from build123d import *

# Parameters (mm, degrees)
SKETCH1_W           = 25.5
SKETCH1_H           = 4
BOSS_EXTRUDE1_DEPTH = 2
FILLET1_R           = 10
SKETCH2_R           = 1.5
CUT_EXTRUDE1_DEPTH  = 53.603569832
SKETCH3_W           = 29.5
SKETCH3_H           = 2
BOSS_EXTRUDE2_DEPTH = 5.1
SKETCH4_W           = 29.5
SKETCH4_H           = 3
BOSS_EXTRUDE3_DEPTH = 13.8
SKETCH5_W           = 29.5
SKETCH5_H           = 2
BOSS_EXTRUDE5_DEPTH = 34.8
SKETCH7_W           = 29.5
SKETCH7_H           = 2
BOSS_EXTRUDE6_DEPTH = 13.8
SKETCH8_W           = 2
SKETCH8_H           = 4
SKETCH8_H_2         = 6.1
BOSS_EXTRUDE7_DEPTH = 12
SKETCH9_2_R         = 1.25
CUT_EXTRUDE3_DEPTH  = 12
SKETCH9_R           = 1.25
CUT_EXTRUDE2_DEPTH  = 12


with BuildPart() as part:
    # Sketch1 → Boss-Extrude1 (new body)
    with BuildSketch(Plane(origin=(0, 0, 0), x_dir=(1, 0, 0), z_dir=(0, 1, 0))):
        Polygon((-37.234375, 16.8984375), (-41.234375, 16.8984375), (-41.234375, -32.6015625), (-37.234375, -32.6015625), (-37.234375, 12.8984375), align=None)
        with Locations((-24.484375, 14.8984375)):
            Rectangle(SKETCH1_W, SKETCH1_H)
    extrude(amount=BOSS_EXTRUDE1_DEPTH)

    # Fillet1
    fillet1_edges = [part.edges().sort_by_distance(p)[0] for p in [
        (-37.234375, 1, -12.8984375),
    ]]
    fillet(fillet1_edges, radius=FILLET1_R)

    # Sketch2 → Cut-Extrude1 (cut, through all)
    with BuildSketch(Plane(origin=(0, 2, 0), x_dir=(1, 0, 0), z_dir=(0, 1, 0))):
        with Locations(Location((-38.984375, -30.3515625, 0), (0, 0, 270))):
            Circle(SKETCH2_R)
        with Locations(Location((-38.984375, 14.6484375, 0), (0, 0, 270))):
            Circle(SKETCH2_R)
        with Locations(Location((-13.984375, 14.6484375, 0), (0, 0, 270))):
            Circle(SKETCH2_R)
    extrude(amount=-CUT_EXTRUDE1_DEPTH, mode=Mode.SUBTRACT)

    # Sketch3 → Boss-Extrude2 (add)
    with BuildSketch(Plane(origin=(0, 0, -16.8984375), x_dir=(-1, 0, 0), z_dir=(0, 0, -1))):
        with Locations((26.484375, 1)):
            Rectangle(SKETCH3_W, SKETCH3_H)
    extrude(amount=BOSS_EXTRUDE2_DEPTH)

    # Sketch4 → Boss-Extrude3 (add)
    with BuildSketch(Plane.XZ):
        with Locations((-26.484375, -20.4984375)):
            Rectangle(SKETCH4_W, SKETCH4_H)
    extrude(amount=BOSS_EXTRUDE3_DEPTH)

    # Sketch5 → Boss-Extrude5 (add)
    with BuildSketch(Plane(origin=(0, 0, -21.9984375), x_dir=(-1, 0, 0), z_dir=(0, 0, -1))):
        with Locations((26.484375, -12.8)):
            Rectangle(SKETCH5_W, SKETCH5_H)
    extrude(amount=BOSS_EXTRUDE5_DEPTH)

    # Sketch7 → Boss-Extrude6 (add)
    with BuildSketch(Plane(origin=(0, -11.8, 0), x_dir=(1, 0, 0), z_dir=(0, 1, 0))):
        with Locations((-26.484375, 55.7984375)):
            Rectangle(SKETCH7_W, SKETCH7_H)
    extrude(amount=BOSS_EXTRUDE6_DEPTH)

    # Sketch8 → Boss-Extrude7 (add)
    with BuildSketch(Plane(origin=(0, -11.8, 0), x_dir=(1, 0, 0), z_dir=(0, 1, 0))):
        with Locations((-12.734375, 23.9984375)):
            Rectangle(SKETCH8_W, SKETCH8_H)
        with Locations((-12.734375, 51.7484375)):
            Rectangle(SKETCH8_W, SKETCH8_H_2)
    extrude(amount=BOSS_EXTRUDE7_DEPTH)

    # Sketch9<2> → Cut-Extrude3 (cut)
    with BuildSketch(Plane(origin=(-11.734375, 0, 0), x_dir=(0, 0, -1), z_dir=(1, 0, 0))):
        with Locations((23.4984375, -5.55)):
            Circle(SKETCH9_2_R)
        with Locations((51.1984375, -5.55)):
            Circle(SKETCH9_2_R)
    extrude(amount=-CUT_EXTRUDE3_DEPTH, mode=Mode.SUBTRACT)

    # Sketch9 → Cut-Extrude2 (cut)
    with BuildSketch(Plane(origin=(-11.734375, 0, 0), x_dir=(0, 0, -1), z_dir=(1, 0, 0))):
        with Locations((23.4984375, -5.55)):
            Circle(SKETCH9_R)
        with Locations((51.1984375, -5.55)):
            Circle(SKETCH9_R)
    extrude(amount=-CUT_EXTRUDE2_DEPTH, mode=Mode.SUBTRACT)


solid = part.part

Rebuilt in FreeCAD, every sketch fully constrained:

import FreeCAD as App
import Part
import Sketcher

V = App.Vector


def edges_at(feature, points):
    """Names of the edges that pass closest to the given points."""
    edges = feature.Shape.Edges
    near = lambda p: min(range(len(edges)), key=lambda i: edges[i].distToShape(Part.Vertex(*p))[0])
    return sorted({f"Edge{near(p) + 1}" for p in points})


def add_polygon(sketch, points):
    """Adds a closed chain of lines whose ends are joined by coincident constraints."""
    first, n = sketch.GeometryCount, len(points)
    for a, b in zip(points, points[1:] + points[:1]):
        sketch.addGeometry(Part.LineSegment(App.Vector(*a, 0), App.Vector(*b, 0)), False)
    for i in range(n):
        sketch.addConstraint(Sketcher.Constraint("Coincident", first + i, 2, first + (i + 1) % n, 1))

doc = App.newDocument("Part")
body = doc.addObject("PartDesign::Body", "Body")

sketch1 = doc.addObject("Sketcher::SketchObject", "Sketch")
body.addObject(sketch1)
sketch1.AttachmentSupport = (doc.XZ_Plane, [""])
sketch1.MapMode = "FlatFace"
add_polygon(sketch1, [(-41.2, -16.9), (-41.2, 32.6), (-37.2, 32.6), (-37.2, -12.9), (-11.7, -12.9), (-11.7, -16.9)])
sketch1.addConstraint([
    Sketcher.Constraint("Vertical", 0),
    Sketcher.Constraint("Horizontal", 1),
    Sketcher.Constraint("Vertical", 2),
    Sketcher.Constraint("Horizontal", 3),
    Sketcher.Constraint("Vertical", 4),
    Sketcher.Constraint("Horizontal", 5),
    Sketcher.Constraint("Equal", 1, 4),
    Sketcher.Constraint("DistanceX", 1, 1, 1, 2, 4.0),
    Sketcher.Constraint("DistanceX", 3, 1, 3, 2, 25.5),
    Sketcher.Constraint("DistanceY", 0, 1, 0, 2, 49.5),
    Sketcher.Constraint("DistanceX", 0, 2, -1, 1, 41.234375),
    Sketcher.Constraint("DistanceY", -1, 1, 0, 2, 32.601562),
])
pad1 = doc.addObject("PartDesign::Pad", "Pad")
body.addObject(pad1)
pad1.Profile = sketch1
pad1.Length = 2
pad1.Reversed = True
doc.recompute()

fillet = doc.addObject("PartDesign::Fillet", "Fillet")
body.addObject(fillet)
fillet.Base = (pad1, edges_at(pad1, [(-37.234, 1, -12.898)]))
fillet.Radius = 10

sketch2 = doc.addObject("Sketcher::SketchObject", "Sketch001")
body.addObject(sketch2)
sketch2.AttachmentSupport = (doc.XZ_Plane, [""])
sketch2.MapMode = "FlatFace"
sketch2.AttachmentOffset = App.Placement(V(0, 0, -2), App.Rotation())
sketch2.addGeometry([
    Part.Circle(V(-39, 30.4, 0), V(0, 0, 1), 1.5),
    Part.Circle(V(-39, -14.6, 0), V(0, 0, 1), 1.5),
    Part.Circle(V(-14, -14.6, 0), V(0, 0, 1), 1.5),
], False)
sketch2.addConstraint([
    Sketcher.Constraint("Equal", 0, 1),
    Sketcher.Constraint("Equal", 1, 2),
    Sketcher.Constraint("Horizontal", 1, 3, 2, 3),
    Sketcher.Constraint("Vertical", 0, 3, 1, 3),
    Sketcher.Constraint("Diameter", 0, 3.0),
    Sketcher.Constraint("DistanceY", 1, 3, 0, 3, 45.0),
    Sketcher.Constraint("DistanceX", 1, 3, 2, 3, 25.0),
    Sketcher.Constraint("DistanceX", 0, 3, -1, 1, 38.984375),
    Sketcher.Constraint("DistanceY", -1, 1, 0, 3, 30.351562),
])
pocket1 = doc.addObject("PartDesign::Pocket", "Pocket")
body.addObject(pocket1)
pocket1.Profile = sketch2
pocket1.Type = "ThroughAll"
pocket1.Reversed = True

sketch3 = doc.addObject("Sketcher::SketchObject", "Sketch002")
body.addObject(sketch3)
sketch3.AttachmentSupport = (doc.XY_Plane, [""])
sketch3.MapMode = "FlatFace"
sketch3.AttachmentOffset = App.Placement(V(0, 0, -16.898438), App.Rotation())
add_polygon(sketch3, [(-11.7, 2), (-11.7, 0), (-41.2, 0), (-41.2, 2)])
sketch3.addConstraint([
    Sketcher.Constraint("Vertical", 0),
    Sketcher.Constraint("Horizontal", 1),
    Sketcher.Constraint("Vertical", 2),
    Sketcher.Constraint("Horizontal", 3),
    Sketcher.Constraint("PointOnObject", 0, 2, -1),
    Sketcher.Constraint("DistanceY", 0, 2, 0, 1, 2.0),
    Sketcher.Constraint("DistanceX", 1, 2, 1, 1, 29.5),
    Sketcher.Constraint("DistanceX", 0, 2, -1, 1, 11.734375),
])
pad2 = doc.addObject("PartDesign::Pad", "Pad001")
body.addObject(pad2)
pad2.Profile = sketch3
pad2.Length = 5.1
pad2.Reversed = True

sketch4 = doc.addObject("Sketcher::SketchObject", "Sketch003")
body.addObject(sketch4)
sketch4.AttachmentSupport = (doc.XZ_Plane, [""])
sketch4.MapMode = "FlatFace"
add_polygon(sketch4, [(-41.2, -19), (-41.2, -22), (-11.7, -22), (-11.7, -19)])
sketch4.addConstraint([
    Sketcher.Constraint("Vertical", 0),
    Sketcher.Constraint("Horizontal", 1),
    Sketcher.Constraint("Vertical", 2),
    Sketcher.Constraint("Horizontal", 3),
    Sketcher.Constraint("DistanceY", 0, 2, 0, 1, 3.0),
    Sketcher.Constraint("DistanceX", 1, 1, 1, 2, 29.5),
    Sketcher.Constraint("DistanceX", 0, 2, -1, 1, 41.234375),
    Sketcher.Constraint("DistanceY", 0, 2, -1, 1, 21.998438),
])
pad3 = doc.addObject("PartDesign::Pad", "Pad002")
body.addObject(pad3)
pad3.Profile = sketch4
pad3.Length = 13.8

sketch5 = doc.addObject("Sketcher::SketchObject", "Sketch004")
body.addObject(sketch5)
sketch5.AttachmentSupport = (doc.XY_Plane, [""])
sketch5.MapMode = "FlatFace"
sketch5.AttachmentOffset = App.Placement(V(0, 0, -21.998438), App.Rotation())
add_polygon(sketch5, [(-11.7, -11.8), (-11.7, -13.8), (-41.2, -13.8), (-41.2, -11.8)])
sketch5.addConstraint([
    Sketcher.Constraint("Vertical", 0),
    Sketcher.Constraint("Horizontal", 1),
    Sketcher.Constraint("Vertical", 2),
    Sketcher.Constraint("Horizontal", 3),
    Sketcher.Constraint("DistanceY", 0, 2, 0, 1, 2.0),
    Sketcher.Constraint("DistanceX", 1, 2, 1, 1, 29.5),
    Sketcher.Constraint("DistanceY", 0, 2, -1, 1, 13.8),
    Sketcher.Constraint("DistanceX", 0, 2, -1, 1, 11.734375),
])
pad4 = doc.addObject("PartDesign::Pad", "Pad003")
body.addObject(pad4)
pad4.Profile = sketch5
pad4.Length = 34.8
pad4.Reversed = True

sketch6 = doc.addObject("Sketcher::SketchObject", "Sketch005")
body.addObject(sketch6)
sketch6.AttachmentSupport = (doc.XZ_Plane, [""])
sketch6.MapMode = "FlatFace"
sketch6.AttachmentOffset = App.Placement(V(0, 0, 11.8), App.Rotation())
add_polygon(sketch6, [(-41.2, -56.8), (-41.2, -54.8), (-11.7, -54.8), (-11.7, -56.8)])
sketch6.addConstraint([
    Sketcher.Constraint("Vertical", 0),
    Sketcher.Constraint("Horizontal", 1),
    Sketcher.Constraint("Vertical", 2),
    Sketcher.Constraint("Horizontal", 3),
    Sketcher.Constraint("DistanceY", 0, 1, 0, 2, 2.0),
    Sketcher.Constraint("DistanceX", 1, 1, 1, 2, 29.5),
    Sketcher.Constraint("DistanceX", 0, 2, -1, 1, 41.234375),
    Sketcher.Constraint("DistanceY", 0, 2, -1, 1, 54.798437),
])
pad5 = doc.addObject("PartDesign::Pad", "Pad004")
body.addObject(pad5)
pad5.Profile = sketch6
pad5.Length = 13.8
pad5.Reversed = True

sketch7 = doc.addObject("Sketcher::SketchObject", "Sketch006")
body.addObject(sketch7)
sketch7.AttachmentSupport = (doc.XZ_Plane, [""])
sketch7.MapMode = "FlatFace"
sketch7.AttachmentOffset = App.Placement(V(0, 0, 11.8), App.Rotation())
add_polygon(sketch7, [(-13.7, -26), (-13.7, -22), (-11.7, -22), (-11.7, -26)])
add_polygon(sketch7, [(-13.7, -54.8), (-13.7, -48.7), (-11.7, -48.7), (-11.7, -54.8)])
sketch7.addConstraint([
    Sketcher.Constraint("Vertical", 0),
    Sketcher.Constraint("Horizontal", 1),
    Sketcher.Constraint("Vertical", 2),
    Sketcher.Constraint("Horizontal", 3),
    Sketcher.Constraint("Vertical", 4),
    Sketcher.Constraint("Horizontal", 5),
    Sketcher.Constraint("Vertical", 6),
    Sketcher.Constraint("Horizontal", 7),
    Sketcher.Constraint("Vertical", 3, 2, 4, 2),
    Sketcher.Constraint("Vertical", 2, 2, 5, 2),
    Sketcher.Constraint("DistanceX", 1, 1, 1, 2, 2.0),
    Sketcher.Constraint("DistanceY", 0, 1, 0, 2, 4.0),
    Sketcher.Constraint("DistanceY", 4, 1, 4, 2, 6.1),
    Sketcher.Constraint("DistanceY", 4, 2, 3, 2, 22.7),
    Sketcher.Constraint("DistanceX", 0, 2, -1, 1, 13.734375),
    Sketcher.Constraint("DistanceY", 0, 2, -1, 1, 21.998438),
])
pad6 = doc.addObject("PartDesign::Pad", "Pad005")
body.addObject(pad6)
pad6.Profile = sketch7
pad6.Length = 12
pad6.Reversed = True

sketch8 = doc.addObject("Sketcher::SketchObject", "Sketch007")
body.addObject(sketch8)
sketch8.AttachmentSupport = (doc.YZ_Plane, [""])
sketch8.MapMode = "FlatFace"
sketch8.AttachmentOffset = App.Placement(V(0, 0, -11.734375), App.Rotation())
sketch8.addGeometry([
    Part.Circle(V(-5.5, -23.5, 0), V(0, 0, 1), 1.2),
    Part.Circle(V(-5.5, -51.2, 0), V(0, 0, 1), 1.2),
], False)
sketch8.addConstraint([
    Sketcher.Constraint("Equal", 0, 1),
    Sketcher.Constraint("Vertical", 0, 3, 1, 3),
    Sketcher.Constraint("Diameter", 0, 2.5),
    Sketcher.Constraint("DistanceY", 1, 3, 0, 3, 27.7),
    Sketcher.Constraint("DistanceX", 0, 3, -1, 1, 5.55),
    Sketcher.Constraint("DistanceY", 0, 3, -1, 1, 23.498438),
])
pocket2 = doc.addObject("PartDesign::Pocket", "Pocket001")
body.addObject(pocket2)
pocket2.Profile = sketch8
pocket2.Length = 12

sketch9 = doc.addObject("Sketcher::SketchObject", "Sketch008")
body.addObject(sketch9)
sketch9.AttachmentSupport = (doc.YZ_Plane, [""])
sketch9.MapMode = "FlatFace"
sketch9.AttachmentOffset = App.Placement(V(0, 0, -11.734375), App.Rotation())
sketch9.addGeometry([
    Part.Circle(V(-5.5, -23.5, 0), V(0, 0, 1), 1.2),
    Part.Circle(V(-5.5, -51.2, 0), V(0, 0, 1), 1.2),
], False)
sketch9.addConstraint([
    Sketcher.Constraint("Equal", 0, 1),
    Sketcher.Constraint("Vertical", 0, 3, 1, 3),
    Sketcher.Constraint("Diameter", 0, 2.5),
    Sketcher.Constraint("DistanceY", 1, 3, 0, 3, 27.7),
    Sketcher.Constraint("DistanceX", 0, 3, -1, 1, 5.55),
    Sketcher.Constraint("DistanceY", 0, 3, -1, 1, 23.498438),
])
pocket3 = doc.addObject("PartDesign::Pocket", "Pocket002")
body.addObject(pocket3)
pocket3.Profile = sketch9
pocket3.Length = 12

doc.recompute()
